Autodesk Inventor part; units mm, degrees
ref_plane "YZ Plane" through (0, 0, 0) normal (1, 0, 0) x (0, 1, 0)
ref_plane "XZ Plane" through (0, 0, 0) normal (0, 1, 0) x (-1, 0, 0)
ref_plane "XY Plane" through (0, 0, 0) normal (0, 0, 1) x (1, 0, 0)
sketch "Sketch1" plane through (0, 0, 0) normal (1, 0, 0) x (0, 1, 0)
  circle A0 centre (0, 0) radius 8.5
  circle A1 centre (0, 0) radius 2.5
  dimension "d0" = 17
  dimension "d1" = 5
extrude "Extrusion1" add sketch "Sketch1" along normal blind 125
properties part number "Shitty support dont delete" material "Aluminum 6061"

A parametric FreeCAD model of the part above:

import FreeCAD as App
import Part
import Sketcher

V = App.Vector
Q = App.Units.Quantity

doc = App.newDocument("Part")
params = doc.addObject("Spreadsheet::Sheet", "Params")
for row, (alias, value) in enumerate([
    ("sketch1_diameter", "17 mm"),
    ("sketch1_diameter2", "5 mm"),
    ("pad1_length", "125 mm"),
], start=1):
    params.set(f"A{row}", alias)
    params.set(f"B{row}", "=" + value)
    params.setAlias(f"B{row}", alias)

body = doc.addObject("PartDesign::Body", "Body")

# Sketch on YZ plane
sketch1 = doc.addObject("Sketcher::SketchObject", "Sketch")
body.addObject(sketch1)
sketch1.AttachmentSupport = (doc.YZ_Plane, [""])
sketch1.MapMode = "FlatFace"
sketch1.addGeometry([
    Part.Circle(V(0, 0, 0), V(0, 0, 1), 8.5),
    Part.Circle(V(0, 0, 0), V(0, 0, 1), 2.5),
], False)
sketch1.addConstraint([
    Sketcher.Constraint("Coincident", 0, 3, -1, 1),
    Sketcher.Constraint("Coincident", 1, 3, -1, 1),
    Sketcher.Constraint("Diameter", 0, Q("17 mm")),
    Sketcher.Constraint("Diameter", 1, Q("5 mm")),
])
sketch1.setExpression("Constraints[2]", "Params.sketch1_diameter")
sketch1.setExpression("Constraints[3]", "Params.sketch1_diameter2")
pad1 = doc.addObject("PartDesign::Pad", "Pad")
body.addObject(pad1)
pad1.Profile = sketch1
pad1.setExpression("Length", "Params.pad1_length")

doc.recompute()
